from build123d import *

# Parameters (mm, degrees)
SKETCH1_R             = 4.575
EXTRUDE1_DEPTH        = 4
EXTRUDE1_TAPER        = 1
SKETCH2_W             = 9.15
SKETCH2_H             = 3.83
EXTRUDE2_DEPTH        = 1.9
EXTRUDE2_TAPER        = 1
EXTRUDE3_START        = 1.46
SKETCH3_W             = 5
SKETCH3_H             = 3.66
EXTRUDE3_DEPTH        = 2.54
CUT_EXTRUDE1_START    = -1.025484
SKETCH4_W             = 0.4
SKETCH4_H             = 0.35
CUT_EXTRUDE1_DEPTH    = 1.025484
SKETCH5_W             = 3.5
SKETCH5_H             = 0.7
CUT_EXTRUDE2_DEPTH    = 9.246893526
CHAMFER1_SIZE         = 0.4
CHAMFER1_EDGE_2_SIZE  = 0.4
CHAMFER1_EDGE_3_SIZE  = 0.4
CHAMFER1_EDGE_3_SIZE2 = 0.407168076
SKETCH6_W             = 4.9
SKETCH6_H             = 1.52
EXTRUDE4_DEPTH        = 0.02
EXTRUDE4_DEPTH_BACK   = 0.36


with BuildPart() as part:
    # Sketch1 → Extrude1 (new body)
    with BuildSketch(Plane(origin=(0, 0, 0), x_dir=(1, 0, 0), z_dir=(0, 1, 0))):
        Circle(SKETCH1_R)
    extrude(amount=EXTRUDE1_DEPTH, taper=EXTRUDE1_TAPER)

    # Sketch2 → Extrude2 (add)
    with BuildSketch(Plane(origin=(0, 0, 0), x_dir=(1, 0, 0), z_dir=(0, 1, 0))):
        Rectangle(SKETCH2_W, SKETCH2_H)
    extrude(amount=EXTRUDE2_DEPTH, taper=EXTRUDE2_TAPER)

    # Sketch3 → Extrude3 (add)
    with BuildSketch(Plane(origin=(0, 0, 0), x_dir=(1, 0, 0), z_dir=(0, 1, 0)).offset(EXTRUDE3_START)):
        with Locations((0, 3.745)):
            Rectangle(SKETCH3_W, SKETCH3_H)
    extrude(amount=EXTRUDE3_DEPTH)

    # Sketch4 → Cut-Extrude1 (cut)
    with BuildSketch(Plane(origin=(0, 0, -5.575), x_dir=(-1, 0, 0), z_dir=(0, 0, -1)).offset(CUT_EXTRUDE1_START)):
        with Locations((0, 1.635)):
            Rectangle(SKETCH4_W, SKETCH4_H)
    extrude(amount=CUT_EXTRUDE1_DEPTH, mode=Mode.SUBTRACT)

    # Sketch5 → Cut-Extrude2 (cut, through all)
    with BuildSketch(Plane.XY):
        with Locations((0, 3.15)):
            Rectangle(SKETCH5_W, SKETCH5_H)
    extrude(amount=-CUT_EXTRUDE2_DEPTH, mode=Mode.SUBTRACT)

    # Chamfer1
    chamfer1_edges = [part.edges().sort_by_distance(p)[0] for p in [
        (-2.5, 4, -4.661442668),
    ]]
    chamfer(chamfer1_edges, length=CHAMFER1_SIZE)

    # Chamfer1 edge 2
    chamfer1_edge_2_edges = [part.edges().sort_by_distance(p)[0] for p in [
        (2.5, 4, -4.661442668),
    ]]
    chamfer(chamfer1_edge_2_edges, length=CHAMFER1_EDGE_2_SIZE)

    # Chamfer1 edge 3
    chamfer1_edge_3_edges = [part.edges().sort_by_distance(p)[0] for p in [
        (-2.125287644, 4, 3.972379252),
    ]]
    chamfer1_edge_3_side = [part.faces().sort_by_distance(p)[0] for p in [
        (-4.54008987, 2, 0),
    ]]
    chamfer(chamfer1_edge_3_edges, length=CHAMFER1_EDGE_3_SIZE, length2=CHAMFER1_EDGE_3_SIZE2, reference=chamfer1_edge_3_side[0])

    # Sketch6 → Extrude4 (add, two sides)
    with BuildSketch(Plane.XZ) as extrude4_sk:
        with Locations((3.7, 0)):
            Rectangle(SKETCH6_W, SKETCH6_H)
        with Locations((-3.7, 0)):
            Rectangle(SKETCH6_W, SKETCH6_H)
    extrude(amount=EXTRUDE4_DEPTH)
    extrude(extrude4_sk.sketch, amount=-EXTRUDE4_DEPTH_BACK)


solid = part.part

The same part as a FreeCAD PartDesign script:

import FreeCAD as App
import Part
import Sketcher
from FreeCAD import Vector
Q = App.Units.Quantity


def edges_at(feature, points):
    """Names of the edges that pass closest to the given points."""
    edges = feature.Shape.Edges
    near = lambda p: min(range(len(edges)), key=lambda i: edges[i].distToShape(Part.Vertex(*p))[0])
    return sorted({f"Edge{near(p) + 1}" for p in points})


def add_polygon(sketch, points):
    """Adds a closed chain of lines whose ends are joined by coincident constraints."""
    first, n = sketch.GeometryCount, len(points)
    for a, b in zip(points, points[1:] + points[:1]):
        sketch.addGeometry(Part.LineSegment(App.Vector(*a, 0), App.Vector(*b, 0)), False)
    for i in range(n):
        sketch.addConstraint(Sketcher.Constraint("Coincident", first + i, 2, first + (i + 1) % n, 1))

doc = App.newDocument("Part")
body = doc.addObject("PartDesign::Body", "Body")

sketch1 = body.newObject("Sketcher::SketchObject", "Sketch")
sketch1.AttachmentSupport = (doc.getObject("XZ_Plane"), [""])
sketch1.MapMode = "FlatFace"
sketch1.addGeometry(Part.Circle(Vector(0, 0, 0), Vector(0, 0, 1), 4.6), False)
sketch1.addConstraint(Sketcher.Constraint("Coincident", 0, 3, -1, 1))
sketch1.addConstraint(Sketcher.Constraint("Diameter", 0, Q("9.15 mm")))
pad1 = body.newObject("PartDesign::Pad", "Pad")
pad1.Profile = sketch1
pad1.Length = 4
pad1.Reversed = True
pad1.TaperAngle = -1

sketch2 = body.newObject("Sketcher::SketchObject", "Sketch001")
sketch2.AttachmentSupport = (doc.getObject("XZ_Plane"), [""])
sketch2.MapMode = "FlatFace"
add_polygon(sketch2, [(-4.6, -1.9), (-4.6, 1.9), (4.6, 1.9), (4.6, -1.9)])
sketch2.addConstraint(Sketcher.Constraint("Vertical", 0))
sketch2.addConstraint(Sketcher.Constraint("Horizontal", 1))
sketch2.addConstraint(Sketcher.Constraint("Vertical", 2))
sketch2.addConstraint(Sketcher.Constraint("Horizontal", 3))
sketch2.addConstraint(Sketcher.Constraint("Symmetric", 0, 2, 2, 2, -1, 1))
sketch2.addConstraint(Sketcher.Constraint("DistanceX", 1, 1, 1, 2, Q("9.15 mm")))
sketch2.addConstraint(Sketcher.Constraint("DistanceY", 0, 1, 0, 2, Q("3.83 mm")))
pad2 = body.newObject("PartDesign::Pad", "Pad001")
pad2.Profile = sketch2
pad2.Length = 1.9
pad2.Reversed = True
pad2.TaperAngle = -1

sketch3 = body.newObject("Sketcher::SketchObject", "Sketch002")
sketch3.AttachmentSupport = (doc.getObject("XZ_Plane"), [""])
sketch3.MapMode = "FlatFace"
sketch3.AttachmentOffset = App.Placement(Vector(0, 0, -1.46), App.Rotation())
add_polygon(sketch3, [(-2.5, -5.6), (-2.5, -1.9), (2.5, -1.9), (2.5, -5.6)])
sketch3.addConstraint(Sketcher.Constraint("Vertical", 0))
sketch3.addConstraint(Sketcher.Constraint("Horizontal", 1))
sketch3.addConstraint(Sketcher.Constraint("Vertical", 2))
sketch3.addConstraint(Sketcher.Constraint("Horizontal", 3))
sketch3.addConstraint(Sketcher.Constraint("DistanceX", 1, 1, 1, 2, Q("5 mm")))
sketch3.addConstraint(Sketcher.Constraint("DistanceY", 0, 1, 0, 2, Q("3.66 mm")))
sketch3.addConstraint(Sketcher.Constraint("DistanceX", 0, 2, -1, 1, Q("2.5 mm")))
sketch3.addConstraint(Sketcher.Constraint("DistanceY", 0, 2, -1, 1, Q("1.915 mm")))
pad3 = body.newObject("PartDesign::Pad", "Pad002")
pad3.Profile = sketch3
pad3.Length = 2.54
pad3.Reversed = True

sketch4 = body.newObject("Sketcher::SketchObject", "Sketch003")
sketch4.AttachmentSupport = (doc.getObject("XY_Plane"), [""])
sketch4.MapMode = "FlatFace"
sketch4.AttachmentOffset = App.Placement(Vector(0, 0, -4.549516), App.Rotation())
add_polygon(sketch4, [(0.2, 1.81), (0.2, 1.46), (-0.2, 1.46), (-0.2, 1.81)])
sketch4.addConstraint(Sketcher.Constraint("Vertical", 0))
sketch4.addConstraint(Sketcher.Constraint("Horizontal", 1))
sketch4.addConstraint(Sketcher.Constraint("Vertical", 2))
sketch4.addConstraint(Sketcher.Constraint("Horizontal", 3))
sketch4.addConstraint(Sketcher.Constraint("DistanceX", 1, 2, 1, 1, Q("0.4 mm")))
sketch4.addConstraint(Sketcher.Constraint("DistanceY", 0, 2, 0, 1, Q("0.35 mm")))
sketch4.addConstraint(Sketcher.Constraint("DistanceX", -1, 1, 0, 2, Q("0.2 mm")))
sketch4.addConstraint(Sketcher.Constraint("DistanceY", -1, 1, 0, 2, Q("1.46 mm")))
pocket1 = body.newObject("PartDesign::Pocket", "Pocket")
pocket1.Profile = sketch4
pocket1.Length = 1.025484

sketch5 = body.newObject("Sketcher::SketchObject", "Sketch004")
sketch5.AttachmentSupport = (doc.getObject("XY_Plane"), [""])
sketch5.MapMode = "FlatFace"
add_polygon(sketch5, [(-1.8, 3.5), (-1.8, 2.8), (1.8, 2.8), (1.8, 3.5)])
sketch5.addConstraint(Sketcher.Constraint("Vertical", 0))
sketch5.addConstraint(Sketcher.Constraint("Horizontal", 1))
sketch5.addConstraint(Sketcher.Constraint("Vertical", 2))
sketch5.addConstraint(Sketcher.Constraint("Horizontal", 3))
sketch5.addConstraint(Sketcher.Constraint("DistanceX", 1, 1, 1, 2, Q("3.5 mm")))
sketch5.addConstraint(Sketcher.Constraint("DistanceY", 0, 2, 0, 1, Q("0.7 mm")))
sketch5.addConstraint(Sketcher.Constraint("DistanceY", -1, 1, 0, 2, Q("2.8 mm")))
sketch5.addConstraint(Sketcher.Constraint("DistanceX", 0, 2, -1, 1, Q("1.75 mm")))
pocket2 = body.newObject("PartDesign::Pocket", "Pocket001")
pocket2.Profile = sketch5
pocket2.Type = "ThroughAll"
doc.recompute()

chamfer = body.newObject("PartDesign::Chamfer", "Chamfer")
chamfer.Base = (pocket2, edges_at(pocket2, [(-2.5, 4, -4.661)]))
chamfer.Size = 0.4
doc.recompute()

chamfer2 = body.newObject("PartDesign::Chamfer", "Chamfer001")
chamfer2.Base = (chamfer, edges_at(chamfer, [(2.5, 4, -4.661)]))
chamfer2.Size = 0.4
doc.recompute()

chamfer3 = body.newObject("PartDesign::Chamfer", "Chamfer002")
chamfer3.Base = (chamfer2, edges_at(chamfer2, [(-2.125, 4, 3.972)]))
chamfer3.ChamferType = "Two distances"
chamfer3.Size = 0.4
chamfer3.Size2 = 0.407168

sketch6 = body.newObject("Sketcher::SketchObject", "Sketch005")
sketch6.AttachmentSupport = (doc.getObject("XZ_Plane"), [""])
sketch6.MapMode = "FlatFace"
add_polygon(sketch6, [(1.2, 0.8), (1.2, -0.8), (6.2, -0.8), (6.2, 0.8)])
add_polygon(sketch6, [(-6.2, 0.8), (-6.2, -0.8), (-1.2, -0.8), (-1.2, 0.8)])
sketch6.addConstraint(Sketcher.Constraint("Vertical", 0))
sketch6.addConstraint(Sketcher.Constraint("Horizontal", 1))
sketch6.addConstraint(Sketcher.Constraint("Vertical", 2))
sketch6.addConstraint(Sketcher.Constraint("Horizontal", 3))
sketch6.addConstraint(Sketcher.Constraint("Vertical", 4))
sketch6.addConstraint(Sketcher.Constraint("Horizontal", 5))
sketch6.addConstraint(Sketcher.Constraint("Vertical", 6))
sketch6.addConstraint(Sketcher.Constraint("Horizontal", 7))
sketch6.addConstraint(Sketcher.Constraint("Symmetric", 2, 2, 4, 2, -1, 1))
sketch6.addConstraint(Sketcher.Constraint("Symmetric", 0, 2, 6, 2, -1, 1))
sketch6.addConstraint(Sketcher.Constraint("Horizontal", 1, 2, 4, 2))
sketch6.addConstraint(Sketcher.Constraint("DistanceX", 1, 1, 1, 2, Q("4.9 mm")))
sketch6.addConstraint(Sketcher.Constraint("DistanceY", 0, 2, 0, 1, Q("1.52 mm")))
sketch6.addConstraint(Sketcher.Constraint("DistanceX", 4, 2, 0, 2, Q("7.4 mm")))
pad4 = body.newObject("PartDesign::Pad", "Pad003")
pad4.Profile = sketch6
pad4.Type = "TwoLengths"
pad4.Length = 0.02
pad4.Length2 = 0.36

doc.recompute()
